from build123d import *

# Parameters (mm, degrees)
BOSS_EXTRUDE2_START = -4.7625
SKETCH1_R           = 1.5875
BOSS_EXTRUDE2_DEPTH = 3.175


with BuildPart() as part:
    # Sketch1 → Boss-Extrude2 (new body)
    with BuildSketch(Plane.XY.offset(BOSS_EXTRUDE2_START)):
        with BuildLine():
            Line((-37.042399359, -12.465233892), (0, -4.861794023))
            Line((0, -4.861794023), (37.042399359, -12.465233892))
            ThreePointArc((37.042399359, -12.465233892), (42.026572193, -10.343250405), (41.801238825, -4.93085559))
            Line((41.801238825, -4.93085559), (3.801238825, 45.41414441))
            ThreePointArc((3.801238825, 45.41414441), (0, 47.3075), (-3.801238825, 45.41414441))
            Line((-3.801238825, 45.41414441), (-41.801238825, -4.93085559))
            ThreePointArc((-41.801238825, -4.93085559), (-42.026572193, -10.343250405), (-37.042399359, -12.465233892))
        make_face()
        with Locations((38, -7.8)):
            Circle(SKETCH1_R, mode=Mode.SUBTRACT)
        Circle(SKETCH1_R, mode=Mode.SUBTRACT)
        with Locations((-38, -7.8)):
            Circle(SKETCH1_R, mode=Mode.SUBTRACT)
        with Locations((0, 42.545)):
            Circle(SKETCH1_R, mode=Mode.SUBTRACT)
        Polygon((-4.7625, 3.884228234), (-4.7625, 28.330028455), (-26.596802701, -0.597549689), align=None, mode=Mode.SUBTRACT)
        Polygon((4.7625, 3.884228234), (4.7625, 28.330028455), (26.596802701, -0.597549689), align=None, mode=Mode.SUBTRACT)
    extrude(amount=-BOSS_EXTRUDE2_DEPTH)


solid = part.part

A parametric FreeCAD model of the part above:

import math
import FreeCAD as App
import Part
import Sketcher

V = App.Vector
Q = App.Units.Quantity


def add_polygon(sketch, points):
    """Adds a closed chain of lines whose ends are joined by coincident constraints."""
    first, n = sketch.GeometryCount, len(points)
    for a, b in zip(points, points[1:] + points[:1]):
        sketch.addGeometry(Part.LineSegment(App.Vector(*a, 0), App.Vector(*b, 0)), False)
    for i in range(n):
        sketch.addConstraint(Sketcher.Constraint("Coincident", first + i, 2, first + (i + 1) % n, 1))

doc = App.newDocument("Part")
params = doc.addObject("Spreadsheet::Sheet", "Params")
for row, (alias, value) in enumerate([
    ("sketch1_diameter", "0.125 in"),
    ("sketch1_radius", "0.1875 in"),
    ("pad1_length", "0.125 in"),
], start=1):
    params.set(f"A{row}", alias)
    params.set(f"B{row}", "=" + value)
    params.setAlias(f"B{row}", alias)

body = doc.addObject("PartDesign::Body", "Body")

# Sketch on XY plane
sketch1 = body.newObject("Sketcher::SketchObject", "Sketch")
sketch1.AttachmentSupport = (doc.getObject("XY_Plane"), [""])
sketch1.MapMode = "FlatFace"
sketch1.AttachmentOffset = App.Placement(V(0, 0, -0.1875 * 25.4), App.Rotation())
sketch1.addGeometry(Part.LineSegment(V(-37, -12.5, 0), V(0, -4.9, 0)), False)  # 0
sketch1.addGeometry(Part.LineSegment(V(0, -4.9, 0), V(37, -12.5, 0)), False)  # 1
sketch1.addGeometry(Part.ArcOfCircle(Part.Circle(V(38, -7.8, 0), V(0, 0, 1), 4.8), math.radians(-102), math.radians(37)), False)  # 2
sketch1.addGeometry(Part.LineSegment(V(41.8, -4.9, 0), V(3.8, 45.4, 0)), False)  # 3
sketch1.addGeometry(Part.ArcOfCircle(Part.Circle(V(0, 42.5, 0), V(0, 0, 1), 4.8), math.radians(37), math.radians(143)), False)  # 4
sketch1.addGeometry(Part.LineSegment(V(-3.8, 45.4, 0), V(-41.8, -4.9, 0)), False)  # 5
sketch1.addGeometry(Part.ArcOfCircle(Part.Circle(V(-38, -7.8, 0), V(0, 0, 1), 4.8), math.radians(143), math.radians(282)), False)  # 6
sketch1.addGeometry(Part.Circle(V(-38, -7.8, 0), V(0, 0, 1), 1.6), False)  # 7
add_polygon(sketch1, [(-4.8, 28.3), (-4.8, 3.9), (-26.6, -0.6)])  # lines 8-10
sketch1.addGeometry(Part.Circle(V(0, 0, 0), V(0, 0, 1), 1.6), False)  # 11
sketch1.addGeometry(Part.Circle(V(38, -7.8, 0), V(0, 0, 1), 1.6), False)  # 12
add_polygon(sketch1, [(26.6, -0.6), (4.8, 3.9), (4.8, 28.3)])  # lines 13-15
sketch1.addGeometry(Part.Circle(V(0, 42.5, 0), V(0, 0, 1), 1.6), False)  # 16
sketch1.addConstraint(Sketcher.Constraint("Coincident", 0, 2, 1, 1))
sketch1.addConstraint(Sketcher.Constraint("Tangent", 1, 2, 2, 1))
sketch1.addConstraint(Sketcher.Constraint("Tangent", 2, 2, 3, 1))
sketch1.addConstraint(Sketcher.Constraint("Tangent", 3, 2, 4, 1))
sketch1.addConstraint(Sketcher.Constraint("Tangent", 4, 2, 5, 1))
sketch1.addConstraint(Sketcher.Constraint("Tangent", 5, 2, 6, 1))
sketch1.addConstraint(Sketcher.Constraint("Tangent", 6, 2, 0, 1))
sketch1.addConstraint(Sketcher.Constraint("Vertical", 8))
sketch1.addConstraint(Sketcher.Constraint("Vertical", 14))
sketch1.addConstraint(Sketcher.Constraint("Coincident", 11, 3, -1, 1))
sketch1.addConstraint(Sketcher.Constraint("Coincident", 7, 3, 6, 3))
sketch1.addConstraint(Sketcher.Constraint("Coincident", 12, 3, 2, 3))
sketch1.addConstraint(Sketcher.Constraint("Coincident", 16, 3, 4, 3))
sketch1.addConstraint(Sketcher.Constraint("Equal", 2, 4))
sketch1.addConstraint(Sketcher.Constraint("Equal", 4, 6))
sketch1.addConstraint(Sketcher.Constraint("Equal", 7, 11))
sketch1.addConstraint(Sketcher.Constraint("Equal", 11, 12))
sketch1.addConstraint(Sketcher.Constraint("Equal", 12, 16))
sketch1.addConstraint(Sketcher.Constraint("Symmetric", 2, 3, 6, 3, -2))
sketch1.addConstraint(Sketcher.Constraint("Symmetric", 8, 2, 13, 2, -2))
sketch1.addConstraint(Sketcher.Constraint("Symmetric", 9, 2, 15, 2, -2))
sketch1.addConstraint(Sketcher.Constraint("PointOnObject", 4, 3, -2))
sketch1.addConstraint(Sketcher.Constraint("PointOnObject", 0, 2, -2))
sketch1.addConstraint(Sketcher.Constraint("Parallel", 0, 9))
sketch1.addConstraint(Sketcher.Constraint("Parallel", 5, 10))
sketch1.addConstraint(Sketcher.Constraint("Parallel", 3, 15))
sketch1.addConstraint(Sketcher.Constraint("Diameter", 7, Q("0.125 in")))
sketch1.addConstraint(Sketcher.Constraint("Radius", 2, Q("0.1875 in")))
sketch1.addConstraint(Sketcher.Constraint("DistanceY", -1, 1, 4, 3, Q("1.675 in")))
sketch1.addConstraint(Sketcher.Constraint("DistanceX", 8, 2, -1, 1, Q("0.1875 in")))
sketch1.addConstraint(Sketcher.Constraint("DistanceY", 8, 2, 8, 1, Q("24.4458 mm")))
sketch1.addConstraint(Sketcher.Constraint("DistanceX", 5, 2, 9, 2, Q("0.5985998 in")))
sketch1.addConstraint(Sketcher.Constraint("Distance", 0, Q("37.814701 mm")))
sketch1.addConstraint(Sketcher.Constraint("DistanceX", -1, 1, 2, 3, Q("38 mm")))
sketch1.addConstraint(Sketcher.Constraint("DistanceY", -1, 1, 8, 2, Q("3.884228 mm")))
sketch1.setExpression("Constraints[32]", "Params.sketch1_diameter")
sketch1.setExpression("Constraints[33]", "Params.sketch1_radius")
pad1 = body.newObject("PartDesign::Pad", "Pad")
pad1.Profile = sketch1
pad1.setExpression("Length", "Params.pad1_length")
pad1.Reversed = True

doc.recompute()
